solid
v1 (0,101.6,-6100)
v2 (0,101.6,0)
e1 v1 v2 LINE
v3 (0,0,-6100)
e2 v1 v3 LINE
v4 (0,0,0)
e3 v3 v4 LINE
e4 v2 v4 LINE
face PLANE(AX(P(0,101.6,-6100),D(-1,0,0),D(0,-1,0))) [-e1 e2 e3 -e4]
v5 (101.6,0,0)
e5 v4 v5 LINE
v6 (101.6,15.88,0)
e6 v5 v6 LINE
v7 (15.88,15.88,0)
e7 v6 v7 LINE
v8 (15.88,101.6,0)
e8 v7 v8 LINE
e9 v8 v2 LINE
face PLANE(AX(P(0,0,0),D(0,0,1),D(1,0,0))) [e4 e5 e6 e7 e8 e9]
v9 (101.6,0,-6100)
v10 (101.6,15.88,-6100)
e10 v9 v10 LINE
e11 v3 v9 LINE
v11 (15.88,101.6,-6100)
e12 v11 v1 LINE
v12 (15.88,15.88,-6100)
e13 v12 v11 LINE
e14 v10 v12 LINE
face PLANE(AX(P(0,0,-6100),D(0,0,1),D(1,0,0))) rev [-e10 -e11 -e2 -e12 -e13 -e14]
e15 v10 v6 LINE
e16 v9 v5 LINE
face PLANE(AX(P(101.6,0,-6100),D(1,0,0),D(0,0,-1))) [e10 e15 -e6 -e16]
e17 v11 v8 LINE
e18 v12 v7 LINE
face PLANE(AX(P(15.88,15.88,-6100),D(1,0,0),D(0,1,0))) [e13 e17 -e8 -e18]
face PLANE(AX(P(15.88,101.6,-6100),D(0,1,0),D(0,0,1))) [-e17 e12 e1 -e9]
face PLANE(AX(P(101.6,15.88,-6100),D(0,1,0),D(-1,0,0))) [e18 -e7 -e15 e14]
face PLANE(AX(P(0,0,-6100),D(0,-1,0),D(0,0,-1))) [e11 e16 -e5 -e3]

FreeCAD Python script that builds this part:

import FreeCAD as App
import Part
import Sketcher

V = App.Vector
Q = App.Units.Quantity

doc = App.newDocument("Part")
body = doc.addObject("PartDesign::Body", "Body")

# Sketch on XY plane
sketch1 = doc.addObject("Sketcher::SketchObject", "Sketch")
body.addObject(sketch1)
sketch1.AttachmentSupport = (doc.XY_Plane, [""])
sketch1.MapMode = "FlatFace"
sketch1.addGeometry([
    Part.LineSegment(V(0, 101.6, 0), V(0, 0, 0)),  # 0
    Part.LineSegment(V(0, 0, 0), V(101.6, 0, 0)),  # 1
    Part.LineSegment(V(101.6, 0, 0), V(101.6, 15.88, 0)),  # 2
    Part.LineSegment(V(101.6, 15.88, 0), V(15.88, 15.88, 0)),  # 3
    Part.LineSegment(V(15.88, 15.88, 0), V(15.88, 101.6, 0)),  # 4
    Part.LineSegment(V(15.88, 101.6, 0), V(0, 101.6, 0)),  # 5
], False)
sketch1.addConstraint([
    Sketcher.Constraint("Coincident", 0, 2, 1, 1),
    Sketcher.Constraint("Coincident", 1, 2, 2, 1),
    Sketcher.Constraint("Coincident", 2, 2, 3, 1),
    Sketcher.Constraint("Coincident", 3, 2, 4, 1),
    Sketcher.Constraint("Coincident", 4, 2, 5, 1),
    Sketcher.Constraint("Coincident", 5, 2, 0, 1),
    Sketcher.Constraint("Vertical", 0),
    Sketcher.Constraint("Horizontal", 1),
    Sketcher.Constraint("Vertical", 2),
    Sketcher.Constraint("Horizontal", 3),
    Sketcher.Constraint("Vertical", 4),
    Sketcher.Constraint("Horizontal", 5),
    Sketcher.Constraint("Coincident", 0, 2, -1, 1),
    Sketcher.Constraint("Equal", 1, 0),
    Sketcher.Constraint("Equal", 5, 2),
    Sketcher.Constraint("DistanceX", 1, 1, 1, 2, Q("101.6 mm")),
    Sketcher.Constraint("DistanceX", 3, 2, 3, 1, Q("85.72 mm")),
])
pad1 = doc.addObject("PartDesign::Pad", "Pad")
body.addObject(pad1)
pad1.Profile = sketch1
pad1.Length = 6100
pad1.Reversed = True

doc.recompute()
